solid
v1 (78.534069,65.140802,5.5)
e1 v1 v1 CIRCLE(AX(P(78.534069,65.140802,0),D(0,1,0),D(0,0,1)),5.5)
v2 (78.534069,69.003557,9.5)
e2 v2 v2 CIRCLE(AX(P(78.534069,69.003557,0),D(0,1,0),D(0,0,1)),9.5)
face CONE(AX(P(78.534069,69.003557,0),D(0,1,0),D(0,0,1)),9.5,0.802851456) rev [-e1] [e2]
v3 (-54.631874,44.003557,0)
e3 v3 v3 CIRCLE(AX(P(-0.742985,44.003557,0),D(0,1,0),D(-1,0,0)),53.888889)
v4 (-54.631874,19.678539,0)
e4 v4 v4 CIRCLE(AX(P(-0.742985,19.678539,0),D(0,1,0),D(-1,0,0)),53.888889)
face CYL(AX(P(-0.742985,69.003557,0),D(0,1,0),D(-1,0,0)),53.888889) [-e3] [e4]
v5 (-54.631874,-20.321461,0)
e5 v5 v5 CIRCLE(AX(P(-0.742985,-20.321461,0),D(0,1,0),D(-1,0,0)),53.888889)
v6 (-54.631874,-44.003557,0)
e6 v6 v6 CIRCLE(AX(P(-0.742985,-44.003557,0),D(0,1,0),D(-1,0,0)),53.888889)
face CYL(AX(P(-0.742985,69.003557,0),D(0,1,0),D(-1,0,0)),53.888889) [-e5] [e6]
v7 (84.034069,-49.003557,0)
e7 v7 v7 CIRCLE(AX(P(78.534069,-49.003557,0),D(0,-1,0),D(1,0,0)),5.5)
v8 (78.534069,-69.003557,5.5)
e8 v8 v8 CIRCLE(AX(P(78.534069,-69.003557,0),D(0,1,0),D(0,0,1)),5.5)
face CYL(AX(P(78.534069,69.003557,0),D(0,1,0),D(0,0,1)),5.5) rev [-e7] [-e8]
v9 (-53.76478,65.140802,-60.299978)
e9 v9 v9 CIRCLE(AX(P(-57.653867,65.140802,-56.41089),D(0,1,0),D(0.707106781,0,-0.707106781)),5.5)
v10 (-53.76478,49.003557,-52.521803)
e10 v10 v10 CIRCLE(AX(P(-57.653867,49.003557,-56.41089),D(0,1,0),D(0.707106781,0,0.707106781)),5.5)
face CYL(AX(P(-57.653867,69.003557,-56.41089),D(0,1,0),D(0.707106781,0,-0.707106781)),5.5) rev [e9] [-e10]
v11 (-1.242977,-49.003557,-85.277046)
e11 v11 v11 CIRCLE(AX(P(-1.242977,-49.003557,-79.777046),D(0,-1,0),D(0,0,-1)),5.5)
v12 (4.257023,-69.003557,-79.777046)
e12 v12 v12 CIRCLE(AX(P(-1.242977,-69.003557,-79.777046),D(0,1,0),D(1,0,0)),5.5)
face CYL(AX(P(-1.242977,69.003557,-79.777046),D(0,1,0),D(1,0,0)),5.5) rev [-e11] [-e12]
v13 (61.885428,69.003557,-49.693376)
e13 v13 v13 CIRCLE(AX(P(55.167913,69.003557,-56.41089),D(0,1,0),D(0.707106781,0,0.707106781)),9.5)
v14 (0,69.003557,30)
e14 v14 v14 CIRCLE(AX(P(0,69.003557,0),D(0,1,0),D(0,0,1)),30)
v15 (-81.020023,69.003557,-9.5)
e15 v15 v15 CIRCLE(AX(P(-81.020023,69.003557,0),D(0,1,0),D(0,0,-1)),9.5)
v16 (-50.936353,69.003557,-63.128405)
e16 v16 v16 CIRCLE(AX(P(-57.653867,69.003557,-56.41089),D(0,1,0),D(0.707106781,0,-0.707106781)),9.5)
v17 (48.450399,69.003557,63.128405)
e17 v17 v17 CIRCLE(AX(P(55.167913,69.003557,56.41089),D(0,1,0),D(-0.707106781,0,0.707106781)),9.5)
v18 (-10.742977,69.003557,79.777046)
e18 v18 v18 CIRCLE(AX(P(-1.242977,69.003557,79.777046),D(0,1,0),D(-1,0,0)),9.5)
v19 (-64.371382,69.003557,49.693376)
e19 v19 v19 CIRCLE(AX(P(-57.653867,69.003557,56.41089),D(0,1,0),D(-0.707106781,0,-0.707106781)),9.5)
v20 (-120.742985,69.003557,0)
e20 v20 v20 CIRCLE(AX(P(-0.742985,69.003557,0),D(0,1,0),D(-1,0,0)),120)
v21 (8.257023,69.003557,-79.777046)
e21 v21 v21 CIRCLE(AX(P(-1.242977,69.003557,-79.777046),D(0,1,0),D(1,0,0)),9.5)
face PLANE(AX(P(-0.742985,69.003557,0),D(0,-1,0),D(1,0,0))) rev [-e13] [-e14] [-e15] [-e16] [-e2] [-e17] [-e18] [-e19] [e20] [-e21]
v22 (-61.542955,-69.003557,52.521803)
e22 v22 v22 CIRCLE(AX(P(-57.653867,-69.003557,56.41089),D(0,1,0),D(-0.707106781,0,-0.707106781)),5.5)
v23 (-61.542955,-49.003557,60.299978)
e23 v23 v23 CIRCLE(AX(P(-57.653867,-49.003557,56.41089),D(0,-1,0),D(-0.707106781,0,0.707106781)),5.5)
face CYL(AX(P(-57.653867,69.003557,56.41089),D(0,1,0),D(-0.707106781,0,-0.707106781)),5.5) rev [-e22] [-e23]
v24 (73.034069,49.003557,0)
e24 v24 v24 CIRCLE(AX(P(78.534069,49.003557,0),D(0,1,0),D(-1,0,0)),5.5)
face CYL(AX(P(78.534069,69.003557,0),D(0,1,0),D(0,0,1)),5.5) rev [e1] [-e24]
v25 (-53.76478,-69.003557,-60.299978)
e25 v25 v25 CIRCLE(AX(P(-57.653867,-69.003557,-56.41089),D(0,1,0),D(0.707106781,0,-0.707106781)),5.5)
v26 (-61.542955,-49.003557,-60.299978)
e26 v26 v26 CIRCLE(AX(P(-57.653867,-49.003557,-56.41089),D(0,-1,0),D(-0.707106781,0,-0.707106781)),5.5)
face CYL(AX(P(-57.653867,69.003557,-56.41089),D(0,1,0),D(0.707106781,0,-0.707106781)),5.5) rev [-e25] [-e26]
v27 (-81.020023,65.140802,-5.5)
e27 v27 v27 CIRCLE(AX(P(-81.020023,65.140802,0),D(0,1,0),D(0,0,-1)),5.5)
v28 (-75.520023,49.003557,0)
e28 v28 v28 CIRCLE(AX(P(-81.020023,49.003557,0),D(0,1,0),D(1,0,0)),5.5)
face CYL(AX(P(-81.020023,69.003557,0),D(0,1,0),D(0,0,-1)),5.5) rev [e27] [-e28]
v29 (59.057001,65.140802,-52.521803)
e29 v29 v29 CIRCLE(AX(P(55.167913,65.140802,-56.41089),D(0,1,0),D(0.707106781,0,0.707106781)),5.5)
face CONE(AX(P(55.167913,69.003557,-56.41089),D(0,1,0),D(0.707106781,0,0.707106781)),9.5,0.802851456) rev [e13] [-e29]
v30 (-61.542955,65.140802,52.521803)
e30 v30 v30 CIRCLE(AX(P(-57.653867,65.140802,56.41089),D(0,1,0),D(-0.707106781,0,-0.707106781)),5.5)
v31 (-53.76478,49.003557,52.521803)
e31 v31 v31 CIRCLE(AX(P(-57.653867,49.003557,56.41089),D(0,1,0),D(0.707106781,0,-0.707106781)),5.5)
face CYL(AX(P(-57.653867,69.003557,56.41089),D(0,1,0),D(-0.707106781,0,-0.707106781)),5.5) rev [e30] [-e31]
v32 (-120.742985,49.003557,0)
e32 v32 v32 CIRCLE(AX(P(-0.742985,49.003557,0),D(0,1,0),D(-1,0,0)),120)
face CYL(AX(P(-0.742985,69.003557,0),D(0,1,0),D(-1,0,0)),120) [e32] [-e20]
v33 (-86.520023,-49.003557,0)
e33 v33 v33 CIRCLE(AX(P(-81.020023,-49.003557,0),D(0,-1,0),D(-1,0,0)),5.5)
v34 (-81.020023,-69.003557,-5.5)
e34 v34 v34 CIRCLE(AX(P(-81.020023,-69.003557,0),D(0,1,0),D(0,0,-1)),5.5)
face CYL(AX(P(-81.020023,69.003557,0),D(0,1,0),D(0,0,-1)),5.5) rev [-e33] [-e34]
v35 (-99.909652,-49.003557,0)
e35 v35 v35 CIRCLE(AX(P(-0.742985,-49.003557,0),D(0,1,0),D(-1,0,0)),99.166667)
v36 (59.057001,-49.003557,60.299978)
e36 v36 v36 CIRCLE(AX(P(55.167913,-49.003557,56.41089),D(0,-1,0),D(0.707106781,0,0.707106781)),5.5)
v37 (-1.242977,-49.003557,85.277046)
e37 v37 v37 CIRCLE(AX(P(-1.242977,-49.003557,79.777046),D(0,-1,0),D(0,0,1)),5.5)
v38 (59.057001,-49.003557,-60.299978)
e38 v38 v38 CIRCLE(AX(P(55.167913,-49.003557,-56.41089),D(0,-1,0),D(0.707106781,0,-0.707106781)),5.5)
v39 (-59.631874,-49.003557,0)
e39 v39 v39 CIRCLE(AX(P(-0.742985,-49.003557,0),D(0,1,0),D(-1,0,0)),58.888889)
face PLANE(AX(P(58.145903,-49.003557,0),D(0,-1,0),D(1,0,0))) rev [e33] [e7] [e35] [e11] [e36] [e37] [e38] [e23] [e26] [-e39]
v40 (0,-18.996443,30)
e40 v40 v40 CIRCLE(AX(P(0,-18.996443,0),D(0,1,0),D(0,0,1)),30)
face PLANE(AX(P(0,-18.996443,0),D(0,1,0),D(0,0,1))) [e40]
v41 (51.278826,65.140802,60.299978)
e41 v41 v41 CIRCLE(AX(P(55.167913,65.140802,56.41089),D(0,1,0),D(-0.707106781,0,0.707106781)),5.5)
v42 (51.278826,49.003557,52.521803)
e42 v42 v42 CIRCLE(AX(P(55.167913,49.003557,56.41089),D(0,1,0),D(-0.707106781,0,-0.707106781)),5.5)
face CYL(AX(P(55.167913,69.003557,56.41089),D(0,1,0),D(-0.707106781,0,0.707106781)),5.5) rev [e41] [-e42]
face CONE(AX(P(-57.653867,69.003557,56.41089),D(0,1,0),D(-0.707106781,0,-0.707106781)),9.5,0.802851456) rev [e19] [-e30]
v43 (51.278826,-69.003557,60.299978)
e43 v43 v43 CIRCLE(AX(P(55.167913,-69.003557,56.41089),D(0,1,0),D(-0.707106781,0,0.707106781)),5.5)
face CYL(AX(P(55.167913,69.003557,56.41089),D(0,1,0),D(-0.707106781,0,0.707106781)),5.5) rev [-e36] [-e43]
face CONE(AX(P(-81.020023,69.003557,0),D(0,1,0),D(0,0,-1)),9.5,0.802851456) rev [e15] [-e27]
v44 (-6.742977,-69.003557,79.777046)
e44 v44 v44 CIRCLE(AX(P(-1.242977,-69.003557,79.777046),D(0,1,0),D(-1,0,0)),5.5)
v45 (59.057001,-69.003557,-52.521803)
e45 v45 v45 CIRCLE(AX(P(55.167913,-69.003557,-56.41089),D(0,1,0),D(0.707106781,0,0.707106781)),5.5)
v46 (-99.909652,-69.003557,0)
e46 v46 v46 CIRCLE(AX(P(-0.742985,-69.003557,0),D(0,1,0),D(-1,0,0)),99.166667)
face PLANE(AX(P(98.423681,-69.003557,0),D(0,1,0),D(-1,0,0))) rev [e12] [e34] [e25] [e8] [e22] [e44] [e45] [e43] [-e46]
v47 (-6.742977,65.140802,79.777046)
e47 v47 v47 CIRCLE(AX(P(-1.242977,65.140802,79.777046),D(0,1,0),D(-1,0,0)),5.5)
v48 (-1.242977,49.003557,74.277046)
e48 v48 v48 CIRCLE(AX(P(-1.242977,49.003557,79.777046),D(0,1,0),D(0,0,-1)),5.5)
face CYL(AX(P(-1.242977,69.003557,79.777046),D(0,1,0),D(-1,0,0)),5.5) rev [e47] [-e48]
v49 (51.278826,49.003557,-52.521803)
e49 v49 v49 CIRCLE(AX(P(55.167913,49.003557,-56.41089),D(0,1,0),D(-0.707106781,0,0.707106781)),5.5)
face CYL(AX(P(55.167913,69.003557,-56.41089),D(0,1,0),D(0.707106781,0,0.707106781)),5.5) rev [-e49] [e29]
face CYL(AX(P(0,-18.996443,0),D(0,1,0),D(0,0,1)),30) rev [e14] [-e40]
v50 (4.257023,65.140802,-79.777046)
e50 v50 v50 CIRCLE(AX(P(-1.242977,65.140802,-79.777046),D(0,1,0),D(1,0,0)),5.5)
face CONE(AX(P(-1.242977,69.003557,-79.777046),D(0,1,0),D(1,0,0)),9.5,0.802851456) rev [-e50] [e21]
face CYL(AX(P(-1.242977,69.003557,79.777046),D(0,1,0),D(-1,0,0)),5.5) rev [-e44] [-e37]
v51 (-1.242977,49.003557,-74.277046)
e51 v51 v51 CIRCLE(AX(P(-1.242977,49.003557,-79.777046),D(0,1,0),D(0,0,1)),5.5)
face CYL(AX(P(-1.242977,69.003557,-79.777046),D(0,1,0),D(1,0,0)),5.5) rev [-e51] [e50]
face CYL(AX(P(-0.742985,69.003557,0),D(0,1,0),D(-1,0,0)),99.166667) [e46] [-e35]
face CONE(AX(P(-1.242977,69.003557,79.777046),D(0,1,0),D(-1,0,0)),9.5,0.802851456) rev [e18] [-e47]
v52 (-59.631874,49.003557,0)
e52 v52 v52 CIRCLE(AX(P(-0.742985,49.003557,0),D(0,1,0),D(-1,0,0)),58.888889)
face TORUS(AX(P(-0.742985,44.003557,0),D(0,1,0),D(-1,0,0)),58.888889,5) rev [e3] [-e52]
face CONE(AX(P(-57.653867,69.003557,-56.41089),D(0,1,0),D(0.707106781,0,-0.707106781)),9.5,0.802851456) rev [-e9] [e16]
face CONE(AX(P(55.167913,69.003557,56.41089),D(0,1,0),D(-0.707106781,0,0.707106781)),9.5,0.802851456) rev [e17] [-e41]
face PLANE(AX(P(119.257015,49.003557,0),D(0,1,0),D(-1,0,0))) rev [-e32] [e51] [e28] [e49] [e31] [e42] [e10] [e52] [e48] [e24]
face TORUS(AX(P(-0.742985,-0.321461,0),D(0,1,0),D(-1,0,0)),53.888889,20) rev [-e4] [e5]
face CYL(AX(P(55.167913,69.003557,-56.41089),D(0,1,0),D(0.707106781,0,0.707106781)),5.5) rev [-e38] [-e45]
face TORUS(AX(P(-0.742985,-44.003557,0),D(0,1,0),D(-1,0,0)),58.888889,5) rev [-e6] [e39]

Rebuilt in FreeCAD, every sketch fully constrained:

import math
import FreeCAD as App
import Part
import Sketcher
from FreeCAD import Vector

doc = App.newDocument("Part")
body = doc.addObject("PartDesign::Body", "Body")

# Sketch on XY plane
sketch1 = body.newObject("Sketcher::SketchObject", "Sketch")
sketch1.AttachmentSupport = (doc.getObject("XY_Plane"), [""])
sketch1.MapMode = "FlatFace"
sketch1.addGeometry([
    Part.LineSegment(Vector(119, 69, 0), Vector(-1, 69, 0)),  # 0
    Part.LineSegment(Vector(-1, 69, 0), Vector(-1, 8, 0)),  # 1
    Part.ArcOfCircle(Part.Circle(Vector(0, 0, 0), Vector(0, 0, 1), 8), math.radians(-96), math.radians(96)),  # 2
    Part.LineSegment(Vector(-1, -8, 0), Vector(-1, -69, 0)),  # 3
    Part.LineSegment(Vector(-1, -69, 0), Vector(98, -69, 0)),  # 4
    Part.LineSegment(Vector(98, -69, 0), Vector(98, -49, 0)),  # 5
    Part.LineSegment(Vector(98, -49, 0), Vector(58, -49, 0)),  # 6
    Part.ArcOfCircle(Part.Circle(Vector(58, -44, 0), Vector(0, 0, 1), 5), math.radians(180), math.radians(270)),  # 7
    Part.LineSegment(Vector(53, -44, 0), Vector(53, -20, 0)),  # 8
    Part.ArcOfCircle(Part.Circle(Vector(53, 0, 0), Vector(0, 0, 1), 20), math.radians(90), math.radians(270)),  # 9
    Part.LineSegment(Vector(53, 20, 0), Vector(53, 44, 0)),  # 10
    Part.ArcOfCircle(Part.Circle(Vector(58, 44, 0), Vector(0, 0, 1), 5), math.radians(90), math.radians(180)),  # 11
    Part.LineSegment(Vector(58, 49, 0), Vector(119, 49, 0)),  # 12
    Part.LineSegment(Vector(119, 49, 0), Vector(119, 69, 0)),  # 13
], False)
sketch1.addGeometry(Part.LineSegment(Vector(-1, 69, 0), Vector(-1, -69, 0)), True)  # axis
sketch1.addConstraint([
    Sketcher.Constraint("Coincident", 0, 2, 1, 1),
    Sketcher.Constraint("Coincident", 1, 2, 2, 2),
    Sketcher.Constraint("Coincident", 2, 1, 3, 1),
    Sketcher.Constraint("Coincident", 3, 2, 4, 1),
    Sketcher.Constraint("Coincident", 4, 2, 5, 1),
    Sketcher.Constraint("Coincident", 5, 2, 6, 1),
    Sketcher.Constraint("Tangent", 6, 2, 7, 2),
    Sketcher.Constraint("Tangent", 7, 1, 8, 1),
    Sketcher.Constraint("Coincident", 8, 2, 9, 2),
    Sketcher.Constraint("Coincident", 9, 1, 10, 1),
    Sketcher.Constraint("Tangent", 10, 2, 11, 2),
    Sketcher.Constraint("Tangent", 11, 1, 12, 1),
    Sketcher.Constraint("Coincident", 12, 2, 13, 1),
    Sketcher.Constraint("Coincident", 13, 2, 0, 1),
    Sketcher.Constraint("Horizontal", 0),
    Sketcher.Constraint("Vertical", 1),
    Sketcher.Constraint("Vertical", 3),
    Sketcher.Constraint("Horizontal", 4),
    Sketcher.Constraint("Vertical", 5),
    Sketcher.Constraint("Horizontal", 6),
    Sketcher.Constraint("Vertical", 8),
    Sketcher.Constraint("Vertical", 10),
    Sketcher.Constraint("Horizontal", 12),
    Sketcher.Constraint("Vertical", 13),
    Sketcher.Constraint("Vertical", 14),
    Sketcher.Constraint("Coincident", 2, 3, -1, 1),
    Sketcher.Constraint("Coincident", 14, 1, 0, 2),
    Sketcher.Constraint("Coincident", 14, 2, 3, 2),
    Sketcher.Constraint("Equal", 7, 11),
    Sketcher.Constraint("Symmetric", 7, 3, 11, 3, -1),
    Sketcher.Constraint("Vertical", 9, 3, 7, 1),
    Sketcher.Constraint("Equal", 1, 3),
    Sketcher.Constraint("Radius", 7, 5.0),
    Sketcher.Constraint("Radius", 9, 20.0),
    Sketcher.Constraint("DistanceX", 0, 2, 0, 1, 120.0),
    Sketcher.Constraint("DistanceY", 5, 1, 5, 2, 20.0),
    Sketcher.Constraint("Radius", 2, 7.739959),
    Sketcher.Constraint("DistanceX", 12, 1, 12, 2, 61.111111),
    Sketcher.Constraint("DistanceY", 1, 2, 1, 1, 61.299341),
    Sketcher.Constraint("DistanceY", 10, 1, 10, 2, 24.325019),
    Sketcher.Constraint("DistanceX", 4, 1, 4, 2, 99.166667),
    Sketcher.Constraint("DistanceY", 8, 1, 8, 2, 23.682096),
])
revolution = body.newObject("PartDesign::Revolution", "Revolution")
revolution.Profile = sketch1
revolution.ReferenceAxis = (sketch1, ["Axis0"])
revolution.Angle = 360

# Sketch on XZ plane
sketch2 = body.newObject("Sketcher::SketchObject", "Sketch001")
sketch2.AttachmentSupport = (doc.getObject("XZ_Plane"), [""])
sketch2.MapMode = "FlatFace"
sketch2.AttachmentOffset = App.Placement(Vector(0, 0, -69.003557), App.Rotation())
sketch2.addGeometry(Part.Circle(Vector(79, 0, 0), Vector(0, 0, 1), 6), False)
sketch2.addConstraint([
    Sketcher.Constraint("PointOnObject", 0, 3, -1),
    Sketcher.Constraint("Diameter", 0, 11.0),
    Sketcher.Constraint("DistanceX", -1, 1, 0, 3, 78.534069),
])
doc.recompute()
hole = body.newObject("PartDesign::Hole", "Hole")
hole.Profile = sketch2
hole.ThreadType = "None"
hole.Diameter = 11
hole.DepthType = "ThroughAll"
hole.HoleCutType = "Countersink"
hole.HoleCutDiameter = 19
hole.HoleCutCountersinkAngle = 92
hole.Reversed = True
doc.recompute()

datumline = body.newObject("PartDesign::Line", "DatumLine")
datumline.Placement = App.Placement(Vector(-1.242977, 0, 0), App.Rotation(Vector(0, 0, 1), Vector(0, 1, 0)))
polarpattern = body.newObject("PartDesign::PolarPattern", "PolarPattern")
polarpattern.Originals = [hole]
polarpattern.Axis = (datumline, [""])
polarpattern.Angle = 360
polarpattern.Occurrences = 8
body.Tip = polarpattern

# Sketch on XZ plane
sketch3 = body.newObject("Sketcher::SketchObject", "Sketch002")
sketch3.AttachmentSupport = (doc.getObject("XZ_Plane"), [""])
sketch3.MapMode = "FlatFace"
sketch3.AttachmentOffset = App.Placement(Vector(0, 0, -69.003557), App.Rotation())
sketch3.addGeometry(Part.Circle(Vector(0, 0, 0), Vector(0, 0, 1), 30), False)
sketch3.addConstraint([
    Sketcher.Constraint("Coincident", 0, 3, -1, 1),
    Sketcher.Constraint("Diameter", 0, 60.0),
])
pocket1 = body.newObject("PartDesign::Pocket", "Pocket")
pocket1.Profile = sketch3
pocket1.Length = 88
pocket1.Reversed = True

doc.recompute()
